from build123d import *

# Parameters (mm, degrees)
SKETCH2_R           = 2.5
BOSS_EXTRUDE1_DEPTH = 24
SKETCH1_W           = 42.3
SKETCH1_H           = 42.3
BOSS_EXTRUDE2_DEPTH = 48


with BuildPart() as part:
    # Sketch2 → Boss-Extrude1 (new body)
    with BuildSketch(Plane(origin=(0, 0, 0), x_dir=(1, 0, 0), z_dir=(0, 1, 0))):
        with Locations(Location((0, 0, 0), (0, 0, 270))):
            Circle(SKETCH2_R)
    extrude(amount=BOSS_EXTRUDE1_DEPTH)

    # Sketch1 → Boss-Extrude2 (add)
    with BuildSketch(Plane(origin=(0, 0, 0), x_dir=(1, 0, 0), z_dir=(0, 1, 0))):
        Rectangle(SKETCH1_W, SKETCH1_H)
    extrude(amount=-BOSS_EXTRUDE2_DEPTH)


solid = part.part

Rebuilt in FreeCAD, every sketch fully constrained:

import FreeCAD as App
import Part
import Sketcher

doc = App.newDocument("Part")
params = doc.addObject("Spreadsheet::Sheet", "Params")
for row, (alias, value) in enumerate([
    ("sketch1_diameter", "5 mm"),
    ("pad1_length", "24 mm"),
    ("sketch2_width", "42.3 mm"),
    ("pad2_length", "48 mm"),
], start=1):
    params.set(f"A{row}", alias)
    params.set(f"B{row}", "=" + value)
    params.setAlias(f"B{row}", alias)

body = doc.addObject("PartDesign::Body", "Body")

# Sketch on XZ plane
sketch1 = body.newObject("Sketcher::SketchObject", "Sketch")
sketch1.AttachmentSupport = (doc.getObject("XZ_Plane"), [""])
sketch1.MapMode = "FlatFace"
sketch1.addGeometry(Part.Circle(App.Vector(0, 0, 0), App.Vector(0, 0, 1), 2.5), False)
sketch1.addConstraint(Sketcher.Constraint("Coincident", 0, 3, -1, 1))
sketch1.addConstraint(Sketcher.Constraint("Diameter", 0, 5.0))
sketch1.setExpression("Constraints[1]", "Params.sketch1_diameter")
pad1 = body.newObject("PartDesign::Pad", "Pad")
pad1.Profile = sketch1
pad1.setExpression("Length", "Params.pad1_length")
pad1.Reversed = True

# Sketch on XZ plane
sketch2 = body.newObject("Sketcher::SketchObject", "Sketch001")
sketch2.AttachmentSupport = (doc.getObject("XZ_Plane"), [""])
sketch2.MapMode = "FlatFace"
sketch2.addGeometry(Part.LineSegment(App.Vector(-21, -21, 0), App.Vector(-21, 21, 0)), False)
sketch2.addGeometry(Part.LineSegment(App.Vector(-21, 21, 0), App.Vector(21, 21, 0)), False)
sketch2.addGeometry(Part.LineSegment(App.Vector(21, 21, 0), App.Vector(21, -21, 0)), False)
sketch2.addGeometry(Part.LineSegment(App.Vector(21, -21, 0), App.Vector(-21, -21, 0)), False)
sketch2.addConstraint(Sketcher.Constraint("Coincident", 0, 2, 1, 1))
sketch2.addConstraint(Sketcher.Constraint("Coincident", 1, 2, 2, 1))
sketch2.addConstraint(Sketcher.Constraint("Coincident", 2, 2, 3, 1))
sketch2.addConstraint(Sketcher.Constraint("Coincident", 3, 2, 0, 1))
sketch2.addConstraint(Sketcher.Constraint("Vertical", 0))
sketch2.addConstraint(Sketcher.Constraint("Horizontal", 1))
sketch2.addConstraint(Sketcher.Constraint("Vertical", 2))
sketch2.addConstraint(Sketcher.Constraint("Horizontal", 3))
sketch2.addConstraint(Sketcher.Constraint("Symmetric", 0, 2, 2, 2, -1, 1))
sketch2.addConstraint(Sketcher.Constraint("Equal", 3, 0))
sketch2.addConstraint(Sketcher.Constraint("DistanceX", 1, 1, 1, 2, 42.3))
sketch2.setExpression("Constraints[10]", "Params.sketch2_width")
pad2 = body.newObject("PartDesign::Pad", "Pad001")
pad2.Profile = sketch2
pad2.setExpression("Length", "Params.pad2_length")

doc.recompute()
